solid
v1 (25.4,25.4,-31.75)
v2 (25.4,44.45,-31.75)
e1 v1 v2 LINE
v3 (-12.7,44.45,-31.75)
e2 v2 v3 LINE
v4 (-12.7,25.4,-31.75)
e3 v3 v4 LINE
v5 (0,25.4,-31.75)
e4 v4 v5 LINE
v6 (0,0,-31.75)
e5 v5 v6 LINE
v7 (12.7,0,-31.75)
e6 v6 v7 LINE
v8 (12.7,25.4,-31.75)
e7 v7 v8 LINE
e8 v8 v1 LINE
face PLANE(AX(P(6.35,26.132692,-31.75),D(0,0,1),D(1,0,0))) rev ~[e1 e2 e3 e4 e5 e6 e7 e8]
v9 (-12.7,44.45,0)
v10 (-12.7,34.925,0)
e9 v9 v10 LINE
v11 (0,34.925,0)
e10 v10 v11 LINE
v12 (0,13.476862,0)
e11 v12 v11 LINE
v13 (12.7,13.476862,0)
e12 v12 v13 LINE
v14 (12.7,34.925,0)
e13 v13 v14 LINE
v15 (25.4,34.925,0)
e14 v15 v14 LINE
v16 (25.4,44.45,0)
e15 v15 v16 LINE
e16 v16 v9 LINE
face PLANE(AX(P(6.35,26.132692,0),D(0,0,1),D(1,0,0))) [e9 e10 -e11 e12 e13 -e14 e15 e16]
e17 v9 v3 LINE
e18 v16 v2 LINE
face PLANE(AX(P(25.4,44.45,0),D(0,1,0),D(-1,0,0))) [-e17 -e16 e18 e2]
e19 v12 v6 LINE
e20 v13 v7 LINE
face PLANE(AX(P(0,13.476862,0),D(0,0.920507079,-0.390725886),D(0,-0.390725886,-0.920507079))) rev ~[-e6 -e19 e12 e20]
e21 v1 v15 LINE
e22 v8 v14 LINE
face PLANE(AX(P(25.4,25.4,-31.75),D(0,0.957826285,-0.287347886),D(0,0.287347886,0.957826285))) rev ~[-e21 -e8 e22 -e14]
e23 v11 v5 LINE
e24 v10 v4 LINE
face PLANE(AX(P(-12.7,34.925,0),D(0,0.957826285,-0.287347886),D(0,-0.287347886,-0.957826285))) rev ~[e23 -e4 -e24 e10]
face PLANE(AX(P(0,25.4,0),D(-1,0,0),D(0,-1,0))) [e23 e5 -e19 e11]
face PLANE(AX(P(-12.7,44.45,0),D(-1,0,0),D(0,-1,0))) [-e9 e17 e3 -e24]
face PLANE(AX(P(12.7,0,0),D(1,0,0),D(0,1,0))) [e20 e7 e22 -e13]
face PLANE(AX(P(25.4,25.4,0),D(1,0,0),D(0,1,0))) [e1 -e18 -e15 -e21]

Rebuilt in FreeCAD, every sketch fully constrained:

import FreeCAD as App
import Part
import Sketcher
from FreeCAD import Vector
Q = App.Units.Quantity


def add_polygon(sketch, points):
    """Adds a closed chain of lines whose ends are joined by coincident constraints."""
    first, n = sketch.GeometryCount, len(points)
    for a, b in zip(points, points[1:] + points[:1]):
        sketch.addGeometry(Part.LineSegment(App.Vector(*a, 0), App.Vector(*b, 0)), False)
    for i in range(n):
        sketch.addConstraint(Sketcher.Constraint("Coincident", first + i, 2, first + (i + 1) % n, 1))

doc = App.newDocument("Part")
body = doc.addObject("PartDesign::Body", "Body")

# Sketch on XY plane
sketch1 = body.newObject("Sketcher::SketchObject", "Sketch")
sketch1.AttachmentSupport = (doc.getObject("XY_Plane"), [""])
sketch1.MapMode = "FlatFace"
add_polygon(sketch1, [(0, 25.4), (0, 0), (12.7, 0), (12.7, 25.4), (25.4, 25.4), (25.4, 44.45), (-12.7, 44.45), (-12.7, 25.4)])  # lines 0-7
sketch1.addConstraint([
    Sketcher.Constraint("Vertical", 0),
    Sketcher.Constraint("Horizontal", 1),
    Sketcher.Constraint("Vertical", 2),
    Sketcher.Constraint("Horizontal", 3),
    Sketcher.Constraint("Vertical", 4),
    Sketcher.Constraint("Horizontal", 5),
    Sketcher.Constraint("Vertical", 6),
    Sketcher.Constraint("Horizontal", 7),
    Sketcher.Constraint("Coincident", 0, 2, -1, 1),
    Sketcher.Constraint("Symmetric", 2, 2, 6, 2, -2),
    Sketcher.Constraint("Equal", 1, 3),
    Sketcher.Constraint("DistanceY", 0, 2, 0, 1, Q("1 in")),
    Sketcher.Constraint("DistanceX", 1, 1, 1, 2, Q("0.5 in")),
    Sketcher.Constraint("DistanceY", 4, 1, 4, 2, Q("0.75 in")),
])
pad1 = body.newObject("PartDesign::Pad", "Pad")
pad1.Profile = sketch1
pad1.Length = Q("1.25 in")
pad1.Reversed = True

# Sketch on YZ plane
sketch2 = body.newObject("Sketcher::SketchObject", "Sketch001")
sketch2.AttachmentSupport = (doc.getObject("YZ_Plane"), [""])
sketch2.MapMode = "FlatFace"
sketch2.AttachmentOffset = App.Placement(Vector(0, 0, -0.5 * 25.4), App.Rotation())
add_polygon(sketch2, [(34.925, 0), (25.4, -31.75), (25.4, 0)])  # lines 0-2
sketch2.addConstraint([
    Sketcher.Constraint("Vertical", 1),
    Sketcher.Constraint("Horizontal", 2),
    Sketcher.Constraint("PointOnObject", 1, 2, -1),
    Sketcher.Constraint("DistanceX", -1, 1, 0, 2, Q("1 in")),
    Sketcher.Constraint("DistanceY", 1, 1, 1, 2, Q("1.25 in")),
    Sketcher.Constraint("DistanceX", 2, 1, 2, 2, Q("0.375 in")),
])
pocket1 = body.newObject("PartDesign::Pocket", "Pocket")
pocket1.Profile = sketch2
pocket1.Length = Q("0.5 in")
pocket1.Reversed = True

# Sketch on YZ plane
sketch3 = body.newObject("Sketcher::SketchObject", "Sketch002")
sketch3.AttachmentSupport = (doc.getObject("YZ_Plane"), [""])
sketch3.MapMode = "FlatFace"
add_polygon(sketch3, [(13.476862, 0), (0, -31.75), (0, 0)])  # lines 0-2
sketch3.addConstraint([
    Sketcher.Constraint("Vertical", 1),
    Sketcher.Constraint("Horizontal", 2),
    Sketcher.Constraint("Coincident", 1, 2, -1, 1),
    Sketcher.Constraint("DistanceY", 1, 1, 1, 2, Q("1.25 in")),
    Sketcher.Constraint("Distance", 0, 34.491859),
])
pocket2 = body.newObject("PartDesign::Pocket", "Pocket001")
pocket2.Profile = sketch3
pocket2.Length = Q("0.5 in")
pocket2.Reversed = True

# Sketch on YZ plane
sketch4 = body.newObject("Sketcher::SketchObject", "Sketch003")
sketch4.AttachmentSupport = (doc.getObject("YZ_Plane"), [""])
sketch4.MapMode = "FlatFace"
sketch4.AttachmentOffset = App.Placement(Vector(0, 0, 1 * 25.4), App.Rotation())
add_polygon(sketch4, [(25.4, -31.75), (34.925, 0), (25.4, 0)])  # lines 0-2
sketch4.addConstraint([
    Sketcher.Constraint("Horizontal", 1),
    Sketcher.Constraint("Vertical", 2),
    Sketcher.Constraint("PointOnObject", 0, 2, -1),
    Sketcher.Constraint("DistanceX", -1, 1, 1, 2, Q("1 in")),
    Sketcher.Constraint("DistanceY", 2, 2, 2, 1, Q("1.25 in")),
    Sketcher.Constraint("DistanceX", 1, 2, 1, 1, Q("0.375 in")),
])
pocket3 = body.newObject("PartDesign::Pocket", "Pocket002")
pocket3.Profile = sketch4
pocket3.Length = Q("0.5 in")

doc.recompute()
